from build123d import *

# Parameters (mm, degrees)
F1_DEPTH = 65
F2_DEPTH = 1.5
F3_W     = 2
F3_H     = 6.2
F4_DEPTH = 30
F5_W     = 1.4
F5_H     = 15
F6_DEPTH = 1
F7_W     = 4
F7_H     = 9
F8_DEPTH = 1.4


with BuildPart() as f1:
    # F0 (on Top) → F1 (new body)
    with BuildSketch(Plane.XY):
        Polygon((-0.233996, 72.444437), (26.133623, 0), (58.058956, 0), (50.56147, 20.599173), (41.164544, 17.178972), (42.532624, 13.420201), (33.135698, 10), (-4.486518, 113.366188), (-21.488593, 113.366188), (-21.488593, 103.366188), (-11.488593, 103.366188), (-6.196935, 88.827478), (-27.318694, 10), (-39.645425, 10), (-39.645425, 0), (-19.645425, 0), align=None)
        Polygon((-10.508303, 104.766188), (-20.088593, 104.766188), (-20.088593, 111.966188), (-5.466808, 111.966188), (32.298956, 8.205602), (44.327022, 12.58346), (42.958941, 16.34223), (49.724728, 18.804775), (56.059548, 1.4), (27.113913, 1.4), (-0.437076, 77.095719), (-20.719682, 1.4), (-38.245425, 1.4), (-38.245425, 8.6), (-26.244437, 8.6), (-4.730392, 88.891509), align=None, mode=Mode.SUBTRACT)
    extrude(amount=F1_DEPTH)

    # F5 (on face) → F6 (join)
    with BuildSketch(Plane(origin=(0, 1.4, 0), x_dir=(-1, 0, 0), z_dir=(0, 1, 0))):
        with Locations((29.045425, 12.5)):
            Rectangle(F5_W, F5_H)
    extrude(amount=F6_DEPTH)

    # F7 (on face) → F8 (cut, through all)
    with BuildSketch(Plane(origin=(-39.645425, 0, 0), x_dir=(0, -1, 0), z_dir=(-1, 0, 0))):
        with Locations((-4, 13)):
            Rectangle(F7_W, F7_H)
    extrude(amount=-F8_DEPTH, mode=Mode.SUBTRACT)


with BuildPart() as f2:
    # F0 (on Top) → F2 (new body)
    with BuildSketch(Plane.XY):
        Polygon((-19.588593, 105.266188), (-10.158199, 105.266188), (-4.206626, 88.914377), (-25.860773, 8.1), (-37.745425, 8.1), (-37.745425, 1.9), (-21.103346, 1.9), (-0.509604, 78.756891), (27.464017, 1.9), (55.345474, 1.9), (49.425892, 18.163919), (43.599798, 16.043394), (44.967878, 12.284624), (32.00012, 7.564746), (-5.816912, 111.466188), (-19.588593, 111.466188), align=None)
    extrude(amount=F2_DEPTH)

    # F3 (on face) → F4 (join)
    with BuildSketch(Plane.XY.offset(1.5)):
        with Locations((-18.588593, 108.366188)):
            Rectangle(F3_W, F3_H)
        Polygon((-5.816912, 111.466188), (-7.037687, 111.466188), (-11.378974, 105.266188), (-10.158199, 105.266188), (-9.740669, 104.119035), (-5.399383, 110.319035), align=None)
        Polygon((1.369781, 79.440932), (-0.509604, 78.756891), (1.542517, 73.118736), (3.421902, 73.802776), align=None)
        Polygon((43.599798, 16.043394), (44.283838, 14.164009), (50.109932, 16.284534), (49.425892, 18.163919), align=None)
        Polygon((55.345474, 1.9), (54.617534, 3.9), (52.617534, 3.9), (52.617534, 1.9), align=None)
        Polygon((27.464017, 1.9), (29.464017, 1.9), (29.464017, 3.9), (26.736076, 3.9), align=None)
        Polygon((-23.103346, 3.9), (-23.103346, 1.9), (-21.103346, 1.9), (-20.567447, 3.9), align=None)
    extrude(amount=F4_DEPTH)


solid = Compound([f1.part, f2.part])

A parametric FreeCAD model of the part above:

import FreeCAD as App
import Part
import Sketcher
from FreeCAD import Vector
Q = App.Units.Quantity


def add_polygon(sketch, points):
    """Adds a closed chain of lines whose ends are joined by coincident constraints."""
    first, n = sketch.GeometryCount, len(points)
    for a, b in zip(points, points[1:] + points[:1]):
        sketch.addGeometry(Part.LineSegment(App.Vector(*a, 0), App.Vector(*b, 0)), False)
    for i in range(n):
        sketch.addConstraint(Sketcher.Constraint("Coincident", first + i, 2, first + (i + 1) % n, 1))

doc = App.newDocument("Part")
params = doc.addObject("Spreadsheet::Sheet", "Params")
for row, (alias, value) in enumerate([
    ("sketch1_width", "10 mm"),
    ("sketch1_width2", "20 mm"),
    ("sketch1_length", "10 mm"),
    ("sketch1_length2", "4 mm"),
    ("sketch1_length3", "110 mm"),
    ("pad1_length", "65 mm"),
    ("sketch2_height", "15 mm"),
    ("sketch2_width", "1.4 mm"),
    ("pad2_length", "1 mm"),
    ("sketch3_width", "4 mm"),
    ("sketch3_height", "9 mm"),
    ("pocket1_length", "1.4 mm"),
    ("sketch4_length", "3.999999 mm"),
    ("sketch4_height", "6.2 mm"),
    ("sketch4_length2", "6.2 mm"),
    ("sketch4_length3", "13.8 mm"),
    ("pad3_length", "1.5 mm"),
    ("sketch5_width", "2 mm"),
    ("sketch5_length", "2 mm"),
    ("sketch5_length2", "5.999999 mm"),
    ("sketch5_height", "6.2 mm"),
    ("sketch5_length3", "6.2 mm"),
    ("pad4_length", "30 mm"),
], start=1):
    params.set(f"A{row}", alias)
    params.set(f"B{row}", "=" + value)
    params.setAlias(f"B{row}", alias)

body = doc.addObject("PartDesign::Body", "Body")

# Sketch on XY plane
sketch1 = doc.addObject("Sketcher::SketchObject", "Sketch")
body.addObject(sketch1)
sketch1.AttachmentSupport = (doc.XY_Plane, [""])
sketch1.MapMode = "FlatFace"
add_polygon(sketch1, [(-0.233996, 72.444437), (26.133623, 0), (58.058956, 0), (50.56147, 20.599173), (41.164544, 17.178972), (42.532624, 13.420201), (33.135698, 10), (-4.486518, 113.366188), (-21.488593, 113.366188), (-21.488593, 103.366188), (-11.488593, 103.366188), (-6.196935, 88.827478), (-27.318694, 10), (-39.645425, 10), (-39.645425, 0), (-19.645425, 0)])  # lines 0-15
add_polygon(sketch1, [(-4.730392, 88.891509), (-10.508303, 104.766188), (-20.088593, 104.766188), (-20.088593, 111.966188), (-5.466808, 111.966188), (32.298956, 8.205602), (44.327022, 12.58346), (42.958941, 16.34223), (49.724728, 18.804775), (56.059548, 1.4), (27.113913, 1.4), (-0.437076, 77.095719), (-20.719682, 1.4), (-38.245425, 1.4), (-38.245425, 8.6), (-26.244437, 8.6)])  # lines 16-31
sketch1.addConstraint([
    Sketcher.Constraint("Horizontal", 1),
    Sketcher.Constraint("Horizontal", 7),
    Sketcher.Constraint("Vertical", 8),
    Sketcher.Constraint("Horizontal", 9),
    Sketcher.Constraint("Horizontal", 12),
    Sketcher.Constraint("Vertical", 13),
    Sketcher.Constraint("Horizontal", 14),
    Sketcher.Constraint("Horizontal", 17),
    Sketcher.Constraint("Vertical", 18),
    Sketcher.Constraint("Horizontal", 19),
    Sketcher.Constraint("Horizontal", 25),
    Sketcher.Constraint("Horizontal", 28),
    Sketcher.Constraint("Vertical", 29),
    Sketcher.Constraint("Horizontal", 30),
    Sketcher.Constraint("PointOnObject", 0, 2, -1),
    Sketcher.Constraint("PointOnObject", 13, 2, -1),
    Sketcher.Constraint("Parallel", 0, 2),
    Sketcher.Constraint("Perpendicular", 2, 3),
    Sketcher.Constraint("Perpendicular", 3, 4),
    Sketcher.Constraint("Perpendicular", 4, 5),
    Sketcher.Constraint("Perpendicular", 5, 6),
    Sketcher.Constraint("Parallel", 6, 10),
    Sketcher.Constraint("Parallel", 11, 15),
    Sketcher.Constraint("Parallel", 10, 16),
    Sketcher.Constraint("Parallel", 16, 20),
    Sketcher.Constraint("Perpendicular", 20, 21),
    Sketcher.Constraint("Perpendicular", 21, 22),
    Sketcher.Constraint("Perpendicular", 22, 23),
    Sketcher.Constraint("Perpendicular", 23, 24),
    Sketcher.Constraint("Parallel", 24, 26),
    Sketcher.Constraint("Parallel", 15, 27),
    Sketcher.Constraint("Parallel", 27, 31),
    Sketcher.Constraint("Horizontal", 5, 2, 11, 2),
    Sketcher.Constraint("Horizontal", 25, 2, 27, 2),
    Sketcher.Constraint("Equal", 9, 8),
    Sketcher.Constraint("Equal", 8, 13),
    Sketcher.Constraint("Equal", 18, 29),
    Sketcher.Constraint("Equal", 3, 5),
    Sketcher.Constraint("Equal", 4, 22),
    Sketcher.Constraint("DistanceX", 9, 1, 9, 2, 10.0),
    Sketcher.Constraint("DistanceX", 14, 1, 14, 2, 20.0),
    Sketcher.Constraint("Angle", 0, Q("-70 deg")),
    Sketcher.Constraint("Angle", 11, Q("-105 deg")),
    Sketcher.Constraint("Distance", 3, 10.0),
    Sketcher.Constraint("Distance", 4, 4.0),
    Sketcher.Constraint("Distance", 6, 110.0),
    Sketcher.Constraint("Distance", 15, 75.0),
    Sketcher.Constraint("DistanceY", 18, 1, 18, 2, 7.2),
    Sketcher.Constraint("Distance", 21, 12.8),
    Sketcher.Constraint("Distance", 23, 7.2),
    Sketcher.Constraint("DistanceY", -1, 1, 24, 2, 1.4),
    Sketcher.Constraint("DistanceY", 9, 2, 16, 2, 1.4),
    Sketcher.Constraint("DistanceX", 8, 2, 17, 2, 1.4),
    Sketcher.Constraint("DistanceX", 13, 2, 28, 2, 1.4),
    Sketcher.Constraint("DistanceX", 0, 2, 4, 2, 16.399001),
    Sketcher.Constraint("Distance", 26, 80.553702),
    Sketcher.Constraint("DistanceX", 12, 2, 12, 1, 12.326731),
    Sketcher.Constraint("DistanceX", 17, 2, 17, 1, 9.58029),
    Sketcher.Constraint("DistanceY", 20, 2, 4, 2, 5.214599),
    Sketcher.Constraint("DistanceX", 4, 2, 21, 2, 1.794398),
    Sketcher.Constraint("DistanceX", 9, 2, 31, 2, 6.758201),
    Sketcher.Constraint("Distance", 11, 81.60821),
    Sketcher.Constraint("DistanceX", 25, 2, 25, 1, 28.945635),
    Sketcher.Constraint("DistanceX", -1, 1, 2, 2, 50.56147),
])
sketch1.setExpression("Constraints[71]", "Params.sketch1_width")
sketch1.setExpression("Constraints[72]", "Params.sketch1_width2")
sketch1.setExpression("Constraints[75]", "Params.sketch1_length")
sketch1.setExpression("Constraints[76]", "Params.sketch1_length2")
sketch1.setExpression("Constraints[77]", "Params.sketch1_length3")
pad1 = doc.addObject("PartDesign::Pad", "Pad")
body.addObject(pad1)
pad1.Profile = sketch1
pad1.setExpression("Length", "Params.pad1_length")

# Sketch on XZ plane
sketch2 = doc.addObject("Sketcher::SketchObject", "Sketch001")
body.addObject(sketch2)
sketch2.AttachmentSupport = (doc.XZ_Plane, [""])
sketch2.MapMode = "FlatFace"
sketch2.AttachmentOffset = App.Placement(Vector(0, 0, -1.4), App.Rotation())
add_polygon(sketch2, [(-28.345425, 20), (-28.345425, 5), (-29.745425, 5), (-29.745425, 20)])  # lines 0-3
sketch2.addConstraint([
    Sketcher.Constraint("Vertical", 0),
    Sketcher.Constraint("Horizontal", 1),
    Sketcher.Constraint("Vertical", 2),
    Sketcher.Constraint("Horizontal", 3),
    Sketcher.Constraint("DistanceY", 0, 2, 0, 1, 15.0),
    Sketcher.Constraint("DistanceX", 1, 2, 1, 1, 1.4),
    Sketcher.Constraint("DistanceY", -1, 1, 0, 2, 5.0),
    Sketcher.Constraint("DistanceX", 0, 2, -1, 1, 28.345425),
])
sketch2.setExpression("Constraints[8]", "Params.sketch2_height")
sketch2.setExpression("Constraints[9]", "Params.sketch2_width")
pad2 = doc.addObject("PartDesign::Pad", "Pad001")
body.addObject(pad2)
pad2.Profile = sketch2
pad2.setExpression("Length", "Params.pad2_length")
pad2.Reversed = True

# Sketch on YZ plane
sketch3 = doc.addObject("Sketcher::SketchObject", "Sketch002")
body.addObject(sketch3)
sketch3.AttachmentSupport = (doc.YZ_Plane, [""])
sketch3.MapMode = "FlatFace"
sketch3.AttachmentOffset = App.Placement(Vector(0, 0, -39.645425), App.Rotation())
add_polygon(sketch3, [(6, 17.5), (6, 8.5), (2, 8.5), (2, 17.5)])  # lines 0-3
sketch3.addConstraint([
    Sketcher.Constraint("Vertical", 0),
    Sketcher.Constraint("Horizontal", 1),
    Sketcher.Constraint("Vertical", 2),
    Sketcher.Constraint("Horizontal", 3),
    Sketcher.Constraint("DistanceX", 1, 2, 1, 1, 4.0),
    Sketcher.Constraint("DistanceY", 0, 2, 0, 1, 9.0),
    Sketcher.Constraint("DistanceX", -1, 1, 0, 2, 6.0),
    Sketcher.Constraint("DistanceY", -1, 1, 0, 2, 8.5),
])
sketch3.setExpression("Constraints[8]", "Params.sketch3_width")
sketch3.setExpression("Constraints[9]", "Params.sketch3_height")
pocket1 = doc.addObject("PartDesign::Pocket", "Pocket")
body.addObject(pocket1)
pocket1.Profile = sketch3
pocket1.setExpression("Length", "Params.pocket1_length")
pocket1.Reversed = True
body2 = doc.addObject("PartDesign::Body", "Body001")

# Sketch on XY plane
sketch4 = doc.addObject("Sketcher::SketchObject", "Sketch003")
body2.addObject(sketch4)
sketch4.AttachmentSupport = (doc.getObject("XY_Plane001"), [""])
sketch4.MapMode = "FlatFace"
add_polygon(sketch4, [(-19.588593, 105.266188), (-10.158199, 105.266188), (-4.206626, 88.914377), (-25.860773, 8.1), (-37.745425, 8.1), (-37.745425, 1.9), (-21.103346, 1.9), (-0.509604, 78.756891), (27.464017, 1.9), (55.345474, 1.9), (49.425892, 18.163919), (43.599798, 16.043394), (44.967878, 12.284624), (32.00012, 7.564746), (-5.816912, 111.466188), (-19.588593, 111.466188)])  # lines 0-15
sketch4.addConstraint([
    Sketcher.Constraint("Horizontal", 0),
    Sketcher.Constraint("Horizontal", 3),
    Sketcher.Constraint("Vertical", 4),
    Sketcher.Constraint("Horizontal", 5),
    Sketcher.Constraint("Horizontal", 8),
    Sketcher.Constraint("Horizontal", 14),
    Sketcher.Constraint("Vertical", 15),
    Sketcher.Constraint("Parallel", 2, 6),
    Sketcher.Constraint("Parallel", 1, 7),
    Sketcher.Constraint("Parallel", 7, 9),
    Sketcher.Constraint("Perpendicular", 9, 10),
    Sketcher.Constraint("Perpendicular", 10, 11),
    Sketcher.Constraint("Perpendicular", 11, 12),
    Sketcher.Constraint("Perpendicular", 12, 13),
    Sketcher.Constraint("Horizontal", 5, 2, 7, 2),
    Sketcher.Constraint("Equal", 4, 15),
    Sketcher.Constraint("Angle", 1, Q("-69.999998 deg")),
    Sketcher.Constraint("Angle", 2, Q("-105 deg")),
    Sketcher.Constraint("Distance", 11, 3.999999),
    Sketcher.Constraint("DistanceY", 4, 2, 4, 1, 6.2),
    Sketcher.Constraint("Distance", 10, 6.2),
    Sketcher.Constraint("Distance", 12, 13.8),
    Sketcher.Constraint("DistanceY", -1, 1, 2, 2, 8.1),
    Sketcher.Constraint("Distance", 2, 83.6652),
    Sketcher.Constraint("Distance", 9, 17.307701),
    Sketcher.Constraint("DistanceX", 3, 2, 3, 1, 11.884652),
    Sketcher.Constraint("DistanceX", 5, 1, 5, 2, 16.642079),
    Sketcher.Constraint("DistanceX", 14, 2, 14, 1, 13.771681),
    Sketcher.Constraint("DistanceX", 0, 2, -1, 1, 10.158199),
    Sketcher.Constraint("DistanceX", 4, 2, 8, 2, 93.090899),
    Sketcher.Constraint("Distance", 6, 79.568109),
    Sketcher.Constraint("DistanceY", -1, 1, 0, 2, 105.266188),
])
sketch4.setExpression("Constraints[34]", "Params.sketch4_length")
sketch4.setExpression("Constraints[35]", "Params.sketch4_height")
sketch4.setExpression("Constraints[36]", "Params.sketch4_length2")
sketch4.setExpression("Constraints[37]", "Params.sketch4_length3")
pad3 = doc.addObject("PartDesign::Pad", "Pad002")
body2.addObject(pad3)
pad3.Profile = sketch4
pad3.setExpression("Length", "Params.pad3_length")

# Sketch on XY plane
sketch5 = doc.addObject("Sketcher::SketchObject", "Sketch004")
body2.addObject(sketch5)
sketch5.AttachmentSupport = (doc.getObject("XY_Plane001"), [""])
sketch5.MapMode = "FlatFace"
sketch5.AttachmentOffset = App.Placement(Vector(0, 0, 1.5), App.Rotation())
add_polygon(sketch5, [(-19.588593, 111.466188), (-19.588593, 105.266188), (-17.588593, 105.266188), (-17.588593, 111.466188)])  # lines 0-3
add_polygon(sketch5, [(-5.816912, 111.466188), (-7.037687, 111.466188), (-11.378974, 105.266188), (-10.158199, 105.266188), (-9.740669, 104.119035), (-5.399383, 110.319035)])  # lines 4-9
add_polygon(sketch5, [(1.369781, 79.440932), (-0.509604, 78.756891), (1.542517, 73.118736), (3.421902, 73.802776)])  # lines 10-13
add_polygon(sketch5, [(43.599798, 16.043394), (44.283838, 14.164009), (50.109932, 16.284534), (49.425892, 18.163919)])  # lines 14-17
add_polygon(sketch5, [(55.345474, 1.9), (54.617534, 3.9), (52.617534, 3.9), (52.617534, 1.9)])  # lines 18-21
add_polygon(sketch5, [(27.464017, 1.9), (29.464017, 1.9), (29.464017, 3.9), (26.736076, 3.9)])  # lines 22-25
add_polygon(sketch5, [(-23.103346, 3.9), (-23.103346, 1.9), (-21.103346, 1.9), (-20.567447, 3.9)])  # lines 26-29
sketch5.addConstraint([
    Sketcher.Constraint("Vertical", 0),
    Sketcher.Constraint("Horizontal", 1),
    Sketcher.Constraint("Vertical", 2),
    Sketcher.Constraint("Horizontal", 3),
    Sketcher.Constraint("Horizontal", 4),
    Sketcher.Constraint("Horizontal", 6),
    Sketcher.Constraint("Horizontal", 19),
    Sketcher.Constraint("Vertical", 20),
    Sketcher.Constraint("Horizontal", 21),
    Sketcher.Constraint("Horizontal", 22),
    Sketcher.Constraint("Vertical", 23),
    Sketcher.Constraint("Horizontal", 24),
    Sketcher.Constraint("Vertical", 26),
    Sketcher.Constraint("Horizontal", 27),
    Sketcher.Constraint("Horizontal", 29),
    Sketcher.Constraint("Parallel", 5, 8),
    Sketcher.Constraint("Parallel", 7, 9),
    Sketcher.Constraint("Perpendicular", 9, 10),
    Sketcher.Constraint("Perpendicular", 10, 11),
    Sketcher.Constraint("Perpendicular", 11, 12),
    Sketcher.Constraint("Perpendicular", 12, 13),
    Sketcher.Constraint("Parallel", 13, 14),
    Sketcher.Constraint("Perpendicular", 14, 15),
    Sketcher.Constraint("Perpendicular", 15, 16),
    Sketcher.Constraint("Perpendicular", 16, 17),
    Sketcher.Constraint("Perpendicular", 17, 18),
    Sketcher.Constraint("Parallel", 18, 25),
    Sketcher.Constraint("Horizontal", 3, 2, 4, 2),
    Sketcher.Constraint("Horizontal", 1, 2, 5, 2),
    Sketcher.Constraint("Horizontal", 21, 2, 22, 2),
    Sketcher.Constraint("Horizontal", 19, 2, 23, 2),
    Sketcher.Constraint("Horizontal", 25, 2, 26, 2),
    Sketcher.Constraint("Horizontal", 24, 2, 28, 2),
    Sketcher.Constraint("Equal", 4, 6),
    Sketcher.Constraint("Equal", 3, 19),
    Sketcher.Constraint("Equal", 19, 22),
    Sketcher.Constraint("Equal", 22, 27),
    Sketcher.Constraint("Equal", 27, 20),
    Sketcher.Constraint("Equal", 12, 14),
    Sketcher.Constraint("DistanceX", 1, 1, 1, 2, 2.0),
    Sketcher.Constraint("Angle", 5, Q("-125.000002 deg")),
    Sketcher.Constraint("Angle", 11, Q("-69.999996 deg")),
    Sketcher.Constraint("Angle", 28, Q("74.999984 deg")),
    Sketcher.Constraint("Distance", 10, 2.0),
    Sketcher.Constraint("Distance", 11, 5.999999),
    Sketcher.Constraint("DistanceY", 0, 2, 0, 1, 6.2),
    Sketcher.Constraint("Distance", 15, 6.2),
    Sketcher.Constraint("DistanceY", -1, 1, 18, 2, 3.9),
    Sketcher.Constraint("DistanceX", 6, 2, -1, 1, 10.158199),
    Sketcher.Constraint("DistanceY", 11, 2, 7, 2, 31.000299),
    Sketcher.Constraint("DistanceX", 6, 2, 12, 2, 13.580101),
    Sketcher.Constraint("DistanceY", 15, 2, 11, 2, 56.834202),
    Sketcher.Constraint("DistanceX", 15, 2, 18, 2, 4.507602),
    Sketcher.Constraint("DistanceX", 4, 2, 4, 1, 1.220775),
    Sketcher.Constraint("DistanceY", -1, 1, 0, 2, 105.266188),
    Sketcher.Constraint("DistanceX", 7, 2, -1, 1, 9.740669),
    Sketcher.Constraint("DistanceX", -1, 1, 14, 2, 44.283838),
    Sketcher.Constraint("DistanceX", 1, 2, 5, 2, 6.209619),
    Sketcher.Constraint("DistanceX", 22, 2, 14, 2, 14.819821),
    Sketcher.Constraint("DistanceX", 26, 2, -1, 1, 23.103346),
])
sketch5.setExpression("Constraints[69]", "Params.sketch5_width")
sketch5.setExpression("Constraints[73]", "Params.sketch5_length")
sketch5.setExpression("Constraints[74]", "Params.sketch5_length2")
sketch5.setExpression("Constraints[75]", "Params.sketch5_height")
sketch5.setExpression("Constraints[76]", "Params.sketch5_length3")
pad4 = doc.addObject("PartDesign::Pad", "Pad003")
body2.addObject(pad4)
pad4.Profile = sketch5
pad4.setExpression("Length", "Params.pad4_length")

doc.recompute()
